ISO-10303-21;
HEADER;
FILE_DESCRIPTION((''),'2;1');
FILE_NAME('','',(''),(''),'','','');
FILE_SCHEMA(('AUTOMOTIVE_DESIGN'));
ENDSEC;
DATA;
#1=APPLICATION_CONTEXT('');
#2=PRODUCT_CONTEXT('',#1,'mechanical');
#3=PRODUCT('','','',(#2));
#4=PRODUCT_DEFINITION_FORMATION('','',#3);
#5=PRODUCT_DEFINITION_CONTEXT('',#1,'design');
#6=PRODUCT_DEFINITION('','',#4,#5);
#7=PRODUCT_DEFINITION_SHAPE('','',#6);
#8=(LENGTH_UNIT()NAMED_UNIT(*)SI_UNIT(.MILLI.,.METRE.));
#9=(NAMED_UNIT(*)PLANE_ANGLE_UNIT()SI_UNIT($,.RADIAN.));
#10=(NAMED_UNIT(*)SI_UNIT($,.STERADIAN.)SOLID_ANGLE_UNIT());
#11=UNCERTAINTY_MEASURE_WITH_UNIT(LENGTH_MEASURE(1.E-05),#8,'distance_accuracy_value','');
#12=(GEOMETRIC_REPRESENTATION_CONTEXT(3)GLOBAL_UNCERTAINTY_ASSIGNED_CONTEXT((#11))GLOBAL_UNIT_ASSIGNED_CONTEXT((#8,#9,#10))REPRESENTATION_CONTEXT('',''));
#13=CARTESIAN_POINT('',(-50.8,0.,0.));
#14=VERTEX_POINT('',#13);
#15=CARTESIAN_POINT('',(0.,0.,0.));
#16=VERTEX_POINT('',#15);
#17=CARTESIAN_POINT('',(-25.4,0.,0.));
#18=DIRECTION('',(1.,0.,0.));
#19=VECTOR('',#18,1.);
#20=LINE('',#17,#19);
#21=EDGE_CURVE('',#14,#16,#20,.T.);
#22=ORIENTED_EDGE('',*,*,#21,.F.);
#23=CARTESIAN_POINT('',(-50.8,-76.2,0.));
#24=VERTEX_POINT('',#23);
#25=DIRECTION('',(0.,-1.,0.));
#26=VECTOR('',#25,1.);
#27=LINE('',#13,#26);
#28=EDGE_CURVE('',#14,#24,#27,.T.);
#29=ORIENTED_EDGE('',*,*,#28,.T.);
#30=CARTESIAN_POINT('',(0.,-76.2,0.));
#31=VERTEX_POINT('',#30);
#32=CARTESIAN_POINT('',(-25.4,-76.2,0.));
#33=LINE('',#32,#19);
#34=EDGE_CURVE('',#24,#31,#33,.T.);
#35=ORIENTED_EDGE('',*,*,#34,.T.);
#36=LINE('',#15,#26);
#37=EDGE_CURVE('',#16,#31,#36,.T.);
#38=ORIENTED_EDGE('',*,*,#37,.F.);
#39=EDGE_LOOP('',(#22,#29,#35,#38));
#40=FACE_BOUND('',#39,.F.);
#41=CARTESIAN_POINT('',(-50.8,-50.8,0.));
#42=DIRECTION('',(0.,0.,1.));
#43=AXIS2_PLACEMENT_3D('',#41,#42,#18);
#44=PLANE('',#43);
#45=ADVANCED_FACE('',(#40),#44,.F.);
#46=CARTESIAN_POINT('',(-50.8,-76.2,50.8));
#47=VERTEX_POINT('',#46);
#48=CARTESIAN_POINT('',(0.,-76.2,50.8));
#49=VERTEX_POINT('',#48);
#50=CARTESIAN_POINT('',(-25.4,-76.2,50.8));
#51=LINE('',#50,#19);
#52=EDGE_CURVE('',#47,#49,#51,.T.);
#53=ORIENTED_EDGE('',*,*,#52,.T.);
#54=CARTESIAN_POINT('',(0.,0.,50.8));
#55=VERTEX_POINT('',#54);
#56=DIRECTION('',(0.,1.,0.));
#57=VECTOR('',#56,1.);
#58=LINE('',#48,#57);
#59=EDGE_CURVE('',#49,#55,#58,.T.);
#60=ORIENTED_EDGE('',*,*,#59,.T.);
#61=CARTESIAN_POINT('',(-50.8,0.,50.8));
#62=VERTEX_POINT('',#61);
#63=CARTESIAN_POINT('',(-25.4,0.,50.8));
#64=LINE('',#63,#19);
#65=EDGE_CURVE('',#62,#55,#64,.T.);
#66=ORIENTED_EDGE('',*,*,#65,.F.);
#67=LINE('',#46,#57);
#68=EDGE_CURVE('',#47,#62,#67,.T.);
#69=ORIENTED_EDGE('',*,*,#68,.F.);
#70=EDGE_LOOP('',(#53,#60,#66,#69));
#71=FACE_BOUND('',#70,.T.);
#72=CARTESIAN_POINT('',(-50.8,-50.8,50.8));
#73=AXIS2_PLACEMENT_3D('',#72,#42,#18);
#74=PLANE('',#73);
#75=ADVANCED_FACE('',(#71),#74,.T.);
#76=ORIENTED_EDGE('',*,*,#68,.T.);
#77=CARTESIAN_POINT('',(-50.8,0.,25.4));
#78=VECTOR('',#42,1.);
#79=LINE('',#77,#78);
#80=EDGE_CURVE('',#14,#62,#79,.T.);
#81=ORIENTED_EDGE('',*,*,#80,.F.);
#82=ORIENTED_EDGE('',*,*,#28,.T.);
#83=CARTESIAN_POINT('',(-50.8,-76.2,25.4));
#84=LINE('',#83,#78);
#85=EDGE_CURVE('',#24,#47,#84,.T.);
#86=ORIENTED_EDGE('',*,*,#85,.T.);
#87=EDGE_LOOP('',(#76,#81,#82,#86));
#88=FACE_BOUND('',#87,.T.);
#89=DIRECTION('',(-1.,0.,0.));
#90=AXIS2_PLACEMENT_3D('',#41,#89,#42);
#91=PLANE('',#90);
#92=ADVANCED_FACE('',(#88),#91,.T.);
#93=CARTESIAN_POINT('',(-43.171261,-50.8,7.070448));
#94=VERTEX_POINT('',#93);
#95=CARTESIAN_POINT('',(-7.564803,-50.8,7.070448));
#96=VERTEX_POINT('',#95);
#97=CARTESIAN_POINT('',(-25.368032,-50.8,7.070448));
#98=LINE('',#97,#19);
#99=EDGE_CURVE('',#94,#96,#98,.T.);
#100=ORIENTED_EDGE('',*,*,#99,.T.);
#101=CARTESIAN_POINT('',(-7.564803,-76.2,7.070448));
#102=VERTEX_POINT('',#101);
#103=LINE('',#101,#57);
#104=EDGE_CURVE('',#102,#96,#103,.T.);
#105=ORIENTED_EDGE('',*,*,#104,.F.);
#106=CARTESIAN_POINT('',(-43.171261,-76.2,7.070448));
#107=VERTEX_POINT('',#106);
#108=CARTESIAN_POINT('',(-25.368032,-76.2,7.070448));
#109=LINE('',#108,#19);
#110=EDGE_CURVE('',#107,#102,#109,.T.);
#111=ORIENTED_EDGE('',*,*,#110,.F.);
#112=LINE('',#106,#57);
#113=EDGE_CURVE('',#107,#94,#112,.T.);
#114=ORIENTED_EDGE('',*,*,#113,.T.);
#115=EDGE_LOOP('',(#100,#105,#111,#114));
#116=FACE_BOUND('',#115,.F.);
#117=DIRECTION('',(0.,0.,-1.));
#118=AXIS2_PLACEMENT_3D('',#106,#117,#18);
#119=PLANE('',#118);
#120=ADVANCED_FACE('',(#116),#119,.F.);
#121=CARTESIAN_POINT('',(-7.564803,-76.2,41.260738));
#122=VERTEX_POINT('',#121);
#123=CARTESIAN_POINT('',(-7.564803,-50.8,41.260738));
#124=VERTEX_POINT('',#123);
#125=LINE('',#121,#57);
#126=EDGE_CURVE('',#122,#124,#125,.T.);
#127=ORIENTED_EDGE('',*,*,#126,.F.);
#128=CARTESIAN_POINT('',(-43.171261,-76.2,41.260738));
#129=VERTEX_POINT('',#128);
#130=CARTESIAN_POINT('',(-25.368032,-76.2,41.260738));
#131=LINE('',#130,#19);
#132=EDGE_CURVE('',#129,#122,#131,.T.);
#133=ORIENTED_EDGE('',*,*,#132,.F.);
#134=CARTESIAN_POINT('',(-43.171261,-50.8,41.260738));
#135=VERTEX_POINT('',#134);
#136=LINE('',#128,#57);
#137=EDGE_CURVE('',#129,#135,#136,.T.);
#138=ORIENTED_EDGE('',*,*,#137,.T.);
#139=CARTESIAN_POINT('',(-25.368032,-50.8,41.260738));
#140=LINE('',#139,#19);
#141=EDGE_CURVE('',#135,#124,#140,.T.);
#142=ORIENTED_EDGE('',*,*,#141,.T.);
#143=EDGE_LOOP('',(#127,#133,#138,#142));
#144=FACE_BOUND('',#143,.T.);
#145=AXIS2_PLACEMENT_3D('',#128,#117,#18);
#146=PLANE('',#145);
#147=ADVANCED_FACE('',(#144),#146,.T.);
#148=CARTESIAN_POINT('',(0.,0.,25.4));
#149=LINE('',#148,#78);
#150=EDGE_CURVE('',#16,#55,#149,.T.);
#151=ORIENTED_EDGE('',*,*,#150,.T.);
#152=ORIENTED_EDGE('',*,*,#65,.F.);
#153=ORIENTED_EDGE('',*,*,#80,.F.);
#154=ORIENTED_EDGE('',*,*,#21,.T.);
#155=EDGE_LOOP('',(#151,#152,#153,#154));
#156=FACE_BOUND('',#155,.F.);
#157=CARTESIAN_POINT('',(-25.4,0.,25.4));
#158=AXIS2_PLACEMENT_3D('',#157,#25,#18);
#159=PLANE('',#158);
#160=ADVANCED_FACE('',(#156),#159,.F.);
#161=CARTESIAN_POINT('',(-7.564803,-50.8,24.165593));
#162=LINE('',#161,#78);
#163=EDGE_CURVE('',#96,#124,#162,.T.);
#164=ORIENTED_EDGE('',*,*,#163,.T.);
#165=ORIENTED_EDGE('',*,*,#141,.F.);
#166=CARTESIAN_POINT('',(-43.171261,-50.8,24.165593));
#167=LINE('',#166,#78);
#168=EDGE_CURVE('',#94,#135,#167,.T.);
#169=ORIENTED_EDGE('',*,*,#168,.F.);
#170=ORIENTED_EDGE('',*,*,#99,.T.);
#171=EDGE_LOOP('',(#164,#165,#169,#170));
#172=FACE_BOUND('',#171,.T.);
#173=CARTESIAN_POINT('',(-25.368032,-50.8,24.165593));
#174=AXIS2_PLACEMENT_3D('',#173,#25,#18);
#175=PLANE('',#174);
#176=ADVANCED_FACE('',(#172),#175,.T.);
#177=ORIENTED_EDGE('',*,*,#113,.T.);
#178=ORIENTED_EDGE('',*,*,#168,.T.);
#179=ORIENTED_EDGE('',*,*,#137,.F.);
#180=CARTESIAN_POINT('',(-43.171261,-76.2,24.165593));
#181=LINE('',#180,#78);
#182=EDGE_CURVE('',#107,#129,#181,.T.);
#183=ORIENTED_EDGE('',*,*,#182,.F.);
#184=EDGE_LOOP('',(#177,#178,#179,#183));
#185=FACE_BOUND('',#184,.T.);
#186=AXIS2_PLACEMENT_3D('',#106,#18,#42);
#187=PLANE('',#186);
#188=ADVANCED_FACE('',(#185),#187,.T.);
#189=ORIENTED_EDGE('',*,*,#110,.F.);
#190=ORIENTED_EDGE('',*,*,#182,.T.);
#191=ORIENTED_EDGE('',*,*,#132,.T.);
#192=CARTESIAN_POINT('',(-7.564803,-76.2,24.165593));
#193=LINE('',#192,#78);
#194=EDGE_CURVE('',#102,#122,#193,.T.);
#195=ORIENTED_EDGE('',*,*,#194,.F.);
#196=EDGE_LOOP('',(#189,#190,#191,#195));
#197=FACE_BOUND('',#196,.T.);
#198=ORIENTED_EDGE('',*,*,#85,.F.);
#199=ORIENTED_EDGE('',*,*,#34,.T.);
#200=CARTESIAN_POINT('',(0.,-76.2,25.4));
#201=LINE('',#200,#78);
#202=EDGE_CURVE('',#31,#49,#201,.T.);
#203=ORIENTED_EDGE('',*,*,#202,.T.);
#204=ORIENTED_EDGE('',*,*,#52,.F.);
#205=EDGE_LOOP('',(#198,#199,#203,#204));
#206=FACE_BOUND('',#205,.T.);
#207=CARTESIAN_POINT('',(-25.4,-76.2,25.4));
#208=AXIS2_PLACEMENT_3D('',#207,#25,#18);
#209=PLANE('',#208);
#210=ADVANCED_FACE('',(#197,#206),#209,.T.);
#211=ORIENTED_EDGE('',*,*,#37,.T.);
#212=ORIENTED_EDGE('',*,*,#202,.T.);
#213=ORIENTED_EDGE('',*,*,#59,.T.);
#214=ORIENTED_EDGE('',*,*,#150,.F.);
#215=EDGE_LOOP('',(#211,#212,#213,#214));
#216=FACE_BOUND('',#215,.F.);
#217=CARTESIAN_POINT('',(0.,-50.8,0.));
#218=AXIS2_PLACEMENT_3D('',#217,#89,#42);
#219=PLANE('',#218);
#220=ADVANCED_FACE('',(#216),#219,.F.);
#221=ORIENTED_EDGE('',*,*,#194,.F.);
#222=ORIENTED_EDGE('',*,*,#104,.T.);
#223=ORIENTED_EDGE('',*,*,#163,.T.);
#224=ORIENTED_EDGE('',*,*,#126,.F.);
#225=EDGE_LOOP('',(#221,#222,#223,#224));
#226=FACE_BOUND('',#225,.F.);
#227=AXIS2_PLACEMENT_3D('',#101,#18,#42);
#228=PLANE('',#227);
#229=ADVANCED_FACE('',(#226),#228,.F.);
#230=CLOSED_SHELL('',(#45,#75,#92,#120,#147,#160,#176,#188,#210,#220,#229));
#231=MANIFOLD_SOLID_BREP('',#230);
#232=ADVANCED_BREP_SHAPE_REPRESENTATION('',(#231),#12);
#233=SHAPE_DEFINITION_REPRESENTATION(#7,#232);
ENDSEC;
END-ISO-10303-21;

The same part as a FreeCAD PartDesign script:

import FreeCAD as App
import Part
import Sketcher
Q = App.Units.Quantity


def add_polygon(sketch, points):
    """Adds a closed chain of lines whose ends are joined by coincident constraints."""
    first, n = sketch.GeometryCount, len(points)
    for a, b in zip(points, points[1:] + points[:1]):
        sketch.addGeometry(Part.LineSegment(App.Vector(*a, 0), App.Vector(*b, 0)), False)
    for i in range(n):
        sketch.addConstraint(Sketcher.Constraint("Coincident", first + i, 2, first + (i + 1) % n, 1))

doc = App.newDocument("Part")
body = doc.addObject("PartDesign::Body", "Body")

# Sketch on XZ plane
sketch1 = body.newObject("Sketcher::SketchObject", "Sketch")
sketch1.AttachmentSupport = (doc.getObject("XZ_Plane"), [""])
sketch1.MapMode = "FlatFace"
add_polygon(sketch1, [(-51, 51), (-51, 0), (0, 0), (0, 51)])  # lines 0-3
sketch1.addConstraint([
    Sketcher.Constraint("Vertical", 0),
    Sketcher.Constraint("Horizontal", 1),
    Sketcher.Constraint("Vertical", 2),
    Sketcher.Constraint("Horizontal", 3),
    Sketcher.Constraint("Coincident", 1, 2, -1, 1),
    Sketcher.Constraint("Equal", 3, 0),
    Sketcher.Constraint("DistanceX", 1, 1, 1, 2, Q("2 in")),
])
pad1 = body.newObject("PartDesign::Pad", "Pad")
pad1.Profile = sketch1
pad1.Length = Q("2 in")

# Sketch on XZ plane
sketch2 = body.newObject("Sketcher::SketchObject", "Sketch001")
sketch2.AttachmentSupport = (doc.getObject("XZ_Plane"), [""])
sketch2.MapMode = "FlatFace"
sketch2.AttachmentOffset = App.Placement(App.Vector(0, 0, 2 * 25.4), App.Rotation())
add_polygon(sketch2, [(-51, 51), (-51, 0), (0, 0), (0, 51)])  # lines 0-3
sketch2.addConstraint([
    Sketcher.Constraint("Vertical", 0),
    Sketcher.Constraint("Horizontal", 1),
    Sketcher.Constraint("Vertical", 2),
    Sketcher.Constraint("Horizontal", 3),
    Sketcher.Constraint("Coincident", 1, 2, -1, 1),
    Sketcher.Constraint("Equal", 3, 0),
    Sketcher.Constraint("DistanceX", 1, 1, 1, 2, Q("2 in")),
])
pad2 = body.newObject("PartDesign::Pad", "Pad001")
pad2.Profile = sketch2
pad2.Length = Q("1 in")

# Sketch on XZ plane
sketch3 = body.newObject("Sketcher::SketchObject", "Sketch002")
sketch3.AttachmentSupport = (doc.getObject("XZ_Plane"), [""])
sketch3.MapMode = "FlatFace"
sketch3.AttachmentOffset = App.Placement(App.Vector(0, 0, 3 * 25.4), App.Rotation())
add_polygon(sketch3, [(-43, 41), (-43, 7), (-8, 7), (-8, 41)])  # lines 0-3
sketch3.addConstraint([
    Sketcher.Constraint("Vertical", 0),
    Sketcher.Constraint("Horizontal", 1),
    Sketcher.Constraint("Vertical", 2),
    Sketcher.Constraint("Horizontal", 3),
    Sketcher.Constraint("DistanceX", 1, 1, 1, 2, 35.606458),
    Sketcher.Constraint("DistanceY", 0, 2, 0, 1, 34.19029),
    Sketcher.Constraint("DistanceX", 0, 2, -1, 1, 43.171261),
    Sketcher.Constraint("DistanceY", -1, 1, 2, 2, 41.260738),
])
pocket1 = body.newObject("PartDesign::Pocket", "Pocket")
pocket1.Profile = sketch3
pocket1.Length = Q("1 in")

doc.recompute()
